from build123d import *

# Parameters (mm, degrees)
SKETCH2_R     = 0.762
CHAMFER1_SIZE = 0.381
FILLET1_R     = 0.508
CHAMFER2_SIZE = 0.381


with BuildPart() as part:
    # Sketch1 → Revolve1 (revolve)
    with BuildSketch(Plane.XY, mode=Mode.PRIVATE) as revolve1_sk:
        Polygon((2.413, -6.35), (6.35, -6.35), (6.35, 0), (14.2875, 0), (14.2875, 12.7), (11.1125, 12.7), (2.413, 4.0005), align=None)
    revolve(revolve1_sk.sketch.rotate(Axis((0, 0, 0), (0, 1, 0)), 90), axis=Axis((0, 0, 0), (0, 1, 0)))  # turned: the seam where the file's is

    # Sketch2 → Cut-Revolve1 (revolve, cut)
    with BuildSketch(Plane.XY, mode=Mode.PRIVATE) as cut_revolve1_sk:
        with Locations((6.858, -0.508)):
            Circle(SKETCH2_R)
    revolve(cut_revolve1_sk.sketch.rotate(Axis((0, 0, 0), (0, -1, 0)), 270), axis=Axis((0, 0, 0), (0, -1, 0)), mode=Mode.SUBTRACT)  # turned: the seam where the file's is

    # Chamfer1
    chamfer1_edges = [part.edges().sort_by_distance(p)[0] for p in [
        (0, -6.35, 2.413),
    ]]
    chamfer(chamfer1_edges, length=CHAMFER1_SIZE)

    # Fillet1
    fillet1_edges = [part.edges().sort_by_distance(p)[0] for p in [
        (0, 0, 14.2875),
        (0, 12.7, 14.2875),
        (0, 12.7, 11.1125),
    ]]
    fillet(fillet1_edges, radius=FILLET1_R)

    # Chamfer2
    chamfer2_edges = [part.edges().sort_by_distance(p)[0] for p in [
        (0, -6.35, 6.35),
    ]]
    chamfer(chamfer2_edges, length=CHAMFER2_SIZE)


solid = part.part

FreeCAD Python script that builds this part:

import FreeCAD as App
import Part
import Sketcher

V = App.Vector
Q = App.Units.Quantity


def edges_at(feature, points):
    """Names of the edges that pass closest to the given points."""
    edges = feature.Shape.Edges
    near = lambda p: min(range(len(edges)), key=lambda i: edges[i].distToShape(Part.Vertex(*p))[0])
    return sorted({f"Edge{near(p) + 1}" for p in points})

doc = App.newDocument("Part")
body = doc.addObject("PartDesign::Body", "Body")

sketch1 = body.newObject("Sketcher::SketchObject", "Sketch")
sketch1.AttachmentSupport = (doc.getObject("XY_Plane"), [""])
sketch1.MapMode = "FlatFace"
sketch1.addGeometry([
    Part.LineSegment(V(2.4, -6.3, 0), V(6.3, -6.3, 0)),
    Part.LineSegment(V(6.3, -6.3, 0), V(6.3, 0, 0)),
    Part.LineSegment(V(6.3, 0, 0), V(14.3, 0, 0)),
    Part.LineSegment(V(14.3, 0, 0), V(14.3, 12.7, 0)),
    Part.LineSegment(V(14.3, 12.7, 0), V(11.1, 12.7, 0)),
    Part.LineSegment(V(11.1, 12.7, 0), V(2.4, 4, 0)),
    Part.LineSegment(V(2.4, 4, 0), V(2.4, -6.3, 0)),
], False)
sketch1.addConstraint([
    Sketcher.Constraint("Coincident", 0, 2, 1, 1),
    Sketcher.Constraint("Coincident", 1, 2, 2, 1),
    Sketcher.Constraint("Coincident", 2, 2, 3, 1),
    Sketcher.Constraint("Coincident", 3, 2, 4, 1),
    Sketcher.Constraint("Coincident", 4, 2, 5, 1),
    Sketcher.Constraint("Coincident", 5, 2, 6, 1),
    Sketcher.Constraint("Coincident", 6, 2, 0, 1),
    Sketcher.Constraint("Horizontal", 0),
    Sketcher.Constraint("Vertical", 1),
    Sketcher.Constraint("Horizontal", 2),
    Sketcher.Constraint("Vertical", 3),
    Sketcher.Constraint("Horizontal", 4),
    Sketcher.Constraint("Vertical", 6),
    Sketcher.Constraint("PointOnObject", 1, 2, -1),
    Sketcher.Constraint("DistanceY", 3, 1, 3, 2, Q("0.5 in")),
    Sketcher.Constraint("Angle", 5, Q("-135 deg")),
    Sketcher.Constraint("DistanceY", 1, 1, 1, 2, Q("0.25 in")),
    Sketcher.Constraint("DistanceX", 0, 1, 0, 2, Q("0.155 in")),
    Sketcher.Constraint("DistanceX", 2, 1, 2, 2, Q("0.3125 in")),
    Sketcher.Constraint("DistanceX", 4, 2, 4, 1, Q("0.125 in")),
    Sketcher.Constraint("DistanceX", -1, 1, 0, 2, Q("0.25 in")),
])
revolution = body.newObject("PartDesign::Revolution", "Revolution")
revolution.Profile = sketch1
revolution.ReferenceAxis = (sketch1, ["V_Axis"])
revolution.Angle = 360

sketch2 = body.newObject("Sketcher::SketchObject", "Sketch001")
sketch2.AttachmentSupport = (doc.getObject("XY_Plane"), [""])
sketch2.MapMode = "FlatFace"
sketch2.addGeometry(Part.Circle(V(6.9, -0.5, 0), V(0, 0, 1), 0.8), False)
sketch2.addConstraint([
    Sketcher.Constraint("Diameter", 0, Q("0.06 in")),
    Sketcher.Constraint("DistanceX", -1, 1, 0, 3, Q("0.27 in")),
    Sketcher.Constraint("DistanceY", 0, 3, -1, 1, Q("0.02 in")),
])
groove = body.newObject("PartDesign::Groove", "Groove")
groove.Profile = sketch2
groove.ReferenceAxis = (sketch2, ["V_Axis"])
groove.Angle = 360
doc.recompute()

chamfer = body.newObject("PartDesign::Chamfer", "Chamfer")
chamfer.Base = (groove, edges_at(groove, [(0, -6.35, 2.413)]))
chamfer.Size = Q("0.015 in")
doc.recompute()

fillet = body.newObject("PartDesign::Fillet", "Fillet")
fillet.Base = (chamfer, edges_at(chamfer, [(0, 0, 14.287), (0, 12.7, 14.287), (0, 12.7, 11.113)]))
fillet.Radius = Q("0.02 in")
doc.recompute()

chamfer2 = body.newObject("PartDesign::Chamfer", "Chamfer001")
chamfer2.Base = (fillet, edges_at(fillet, [(0, -6.35, 6.35)]))
chamfer2.Size = Q("0.015 in")

doc.recompute()
